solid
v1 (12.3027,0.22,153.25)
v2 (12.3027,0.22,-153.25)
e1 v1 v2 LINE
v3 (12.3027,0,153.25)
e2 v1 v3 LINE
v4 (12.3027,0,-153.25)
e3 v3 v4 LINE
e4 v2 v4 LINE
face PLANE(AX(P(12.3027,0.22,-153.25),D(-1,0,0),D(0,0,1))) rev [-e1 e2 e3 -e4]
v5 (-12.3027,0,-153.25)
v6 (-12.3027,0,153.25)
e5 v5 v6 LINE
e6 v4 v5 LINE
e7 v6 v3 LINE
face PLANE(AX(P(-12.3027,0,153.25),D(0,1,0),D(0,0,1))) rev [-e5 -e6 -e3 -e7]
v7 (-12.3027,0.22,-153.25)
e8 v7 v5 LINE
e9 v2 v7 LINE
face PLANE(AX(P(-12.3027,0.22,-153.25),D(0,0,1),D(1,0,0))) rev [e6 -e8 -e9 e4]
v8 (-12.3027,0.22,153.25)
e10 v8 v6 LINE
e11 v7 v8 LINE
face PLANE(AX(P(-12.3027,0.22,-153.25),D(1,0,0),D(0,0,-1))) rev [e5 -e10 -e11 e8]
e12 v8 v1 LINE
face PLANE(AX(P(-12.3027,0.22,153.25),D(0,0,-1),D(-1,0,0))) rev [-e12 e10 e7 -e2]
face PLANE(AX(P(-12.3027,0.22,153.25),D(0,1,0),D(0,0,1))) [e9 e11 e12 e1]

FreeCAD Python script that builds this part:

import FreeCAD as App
import Part
import Sketcher
from FreeCAD import Vector


def add_polygon(sketch, points):
    """Adds a closed chain of lines whose ends are joined by coincident constraints."""
    first, n = sketch.GeometryCount, len(points)
    for a, b in zip(points, points[1:] + points[:1]):
        sketch.addGeometry(Part.LineSegment(App.Vector(*a, 0), App.Vector(*b, 0)), False)
    for i in range(n):
        sketch.addConstraint(Sketcher.Constraint("Coincident", first + i, 2, first + (i + 1) % n, 1))

doc = App.newDocument("Part")
body = doc.addObject("PartDesign::Body", "Body")

# Sketch on XZ plane
sketch1 = doc.addObject("Sketcher::SketchObject", "Sketch")
body.addObject(sketch1)
sketch1.AttachmentSupport = (doc.XZ_Plane, [""])
sketch1.MapMode = "FlatFace"
add_polygon(sketch1, [(-12, -153), (-12, 153), (12, 153), (12, -153)])  # lines 0-3
sketch1.addConstraint(Sketcher.Constraint("Vertical", 0))
sketch1.addConstraint(Sketcher.Constraint("Horizontal", 1))
sketch1.addConstraint(Sketcher.Constraint("Vertical", 2))
sketch1.addConstraint(Sketcher.Constraint("Horizontal", 3))
sketch1.addConstraint(Sketcher.Constraint("Symmetric", 0, 2, 2, 2, -1, 1))
sketch1.addConstraint(Sketcher.Constraint("DistanceY", 0, 1, 0, 2, 306.5))
sketch1.addConstraint(Sketcher.Constraint("DistanceX", 1, 1, 1, 2, 24.6054))
pad1 = doc.addObject("PartDesign::Pad", "Pad")
body.addObject(pad1)
pad1.Profile = sketch1
pad1.Length = 0.22
pad1.Reversed = True

doc.recompute()
